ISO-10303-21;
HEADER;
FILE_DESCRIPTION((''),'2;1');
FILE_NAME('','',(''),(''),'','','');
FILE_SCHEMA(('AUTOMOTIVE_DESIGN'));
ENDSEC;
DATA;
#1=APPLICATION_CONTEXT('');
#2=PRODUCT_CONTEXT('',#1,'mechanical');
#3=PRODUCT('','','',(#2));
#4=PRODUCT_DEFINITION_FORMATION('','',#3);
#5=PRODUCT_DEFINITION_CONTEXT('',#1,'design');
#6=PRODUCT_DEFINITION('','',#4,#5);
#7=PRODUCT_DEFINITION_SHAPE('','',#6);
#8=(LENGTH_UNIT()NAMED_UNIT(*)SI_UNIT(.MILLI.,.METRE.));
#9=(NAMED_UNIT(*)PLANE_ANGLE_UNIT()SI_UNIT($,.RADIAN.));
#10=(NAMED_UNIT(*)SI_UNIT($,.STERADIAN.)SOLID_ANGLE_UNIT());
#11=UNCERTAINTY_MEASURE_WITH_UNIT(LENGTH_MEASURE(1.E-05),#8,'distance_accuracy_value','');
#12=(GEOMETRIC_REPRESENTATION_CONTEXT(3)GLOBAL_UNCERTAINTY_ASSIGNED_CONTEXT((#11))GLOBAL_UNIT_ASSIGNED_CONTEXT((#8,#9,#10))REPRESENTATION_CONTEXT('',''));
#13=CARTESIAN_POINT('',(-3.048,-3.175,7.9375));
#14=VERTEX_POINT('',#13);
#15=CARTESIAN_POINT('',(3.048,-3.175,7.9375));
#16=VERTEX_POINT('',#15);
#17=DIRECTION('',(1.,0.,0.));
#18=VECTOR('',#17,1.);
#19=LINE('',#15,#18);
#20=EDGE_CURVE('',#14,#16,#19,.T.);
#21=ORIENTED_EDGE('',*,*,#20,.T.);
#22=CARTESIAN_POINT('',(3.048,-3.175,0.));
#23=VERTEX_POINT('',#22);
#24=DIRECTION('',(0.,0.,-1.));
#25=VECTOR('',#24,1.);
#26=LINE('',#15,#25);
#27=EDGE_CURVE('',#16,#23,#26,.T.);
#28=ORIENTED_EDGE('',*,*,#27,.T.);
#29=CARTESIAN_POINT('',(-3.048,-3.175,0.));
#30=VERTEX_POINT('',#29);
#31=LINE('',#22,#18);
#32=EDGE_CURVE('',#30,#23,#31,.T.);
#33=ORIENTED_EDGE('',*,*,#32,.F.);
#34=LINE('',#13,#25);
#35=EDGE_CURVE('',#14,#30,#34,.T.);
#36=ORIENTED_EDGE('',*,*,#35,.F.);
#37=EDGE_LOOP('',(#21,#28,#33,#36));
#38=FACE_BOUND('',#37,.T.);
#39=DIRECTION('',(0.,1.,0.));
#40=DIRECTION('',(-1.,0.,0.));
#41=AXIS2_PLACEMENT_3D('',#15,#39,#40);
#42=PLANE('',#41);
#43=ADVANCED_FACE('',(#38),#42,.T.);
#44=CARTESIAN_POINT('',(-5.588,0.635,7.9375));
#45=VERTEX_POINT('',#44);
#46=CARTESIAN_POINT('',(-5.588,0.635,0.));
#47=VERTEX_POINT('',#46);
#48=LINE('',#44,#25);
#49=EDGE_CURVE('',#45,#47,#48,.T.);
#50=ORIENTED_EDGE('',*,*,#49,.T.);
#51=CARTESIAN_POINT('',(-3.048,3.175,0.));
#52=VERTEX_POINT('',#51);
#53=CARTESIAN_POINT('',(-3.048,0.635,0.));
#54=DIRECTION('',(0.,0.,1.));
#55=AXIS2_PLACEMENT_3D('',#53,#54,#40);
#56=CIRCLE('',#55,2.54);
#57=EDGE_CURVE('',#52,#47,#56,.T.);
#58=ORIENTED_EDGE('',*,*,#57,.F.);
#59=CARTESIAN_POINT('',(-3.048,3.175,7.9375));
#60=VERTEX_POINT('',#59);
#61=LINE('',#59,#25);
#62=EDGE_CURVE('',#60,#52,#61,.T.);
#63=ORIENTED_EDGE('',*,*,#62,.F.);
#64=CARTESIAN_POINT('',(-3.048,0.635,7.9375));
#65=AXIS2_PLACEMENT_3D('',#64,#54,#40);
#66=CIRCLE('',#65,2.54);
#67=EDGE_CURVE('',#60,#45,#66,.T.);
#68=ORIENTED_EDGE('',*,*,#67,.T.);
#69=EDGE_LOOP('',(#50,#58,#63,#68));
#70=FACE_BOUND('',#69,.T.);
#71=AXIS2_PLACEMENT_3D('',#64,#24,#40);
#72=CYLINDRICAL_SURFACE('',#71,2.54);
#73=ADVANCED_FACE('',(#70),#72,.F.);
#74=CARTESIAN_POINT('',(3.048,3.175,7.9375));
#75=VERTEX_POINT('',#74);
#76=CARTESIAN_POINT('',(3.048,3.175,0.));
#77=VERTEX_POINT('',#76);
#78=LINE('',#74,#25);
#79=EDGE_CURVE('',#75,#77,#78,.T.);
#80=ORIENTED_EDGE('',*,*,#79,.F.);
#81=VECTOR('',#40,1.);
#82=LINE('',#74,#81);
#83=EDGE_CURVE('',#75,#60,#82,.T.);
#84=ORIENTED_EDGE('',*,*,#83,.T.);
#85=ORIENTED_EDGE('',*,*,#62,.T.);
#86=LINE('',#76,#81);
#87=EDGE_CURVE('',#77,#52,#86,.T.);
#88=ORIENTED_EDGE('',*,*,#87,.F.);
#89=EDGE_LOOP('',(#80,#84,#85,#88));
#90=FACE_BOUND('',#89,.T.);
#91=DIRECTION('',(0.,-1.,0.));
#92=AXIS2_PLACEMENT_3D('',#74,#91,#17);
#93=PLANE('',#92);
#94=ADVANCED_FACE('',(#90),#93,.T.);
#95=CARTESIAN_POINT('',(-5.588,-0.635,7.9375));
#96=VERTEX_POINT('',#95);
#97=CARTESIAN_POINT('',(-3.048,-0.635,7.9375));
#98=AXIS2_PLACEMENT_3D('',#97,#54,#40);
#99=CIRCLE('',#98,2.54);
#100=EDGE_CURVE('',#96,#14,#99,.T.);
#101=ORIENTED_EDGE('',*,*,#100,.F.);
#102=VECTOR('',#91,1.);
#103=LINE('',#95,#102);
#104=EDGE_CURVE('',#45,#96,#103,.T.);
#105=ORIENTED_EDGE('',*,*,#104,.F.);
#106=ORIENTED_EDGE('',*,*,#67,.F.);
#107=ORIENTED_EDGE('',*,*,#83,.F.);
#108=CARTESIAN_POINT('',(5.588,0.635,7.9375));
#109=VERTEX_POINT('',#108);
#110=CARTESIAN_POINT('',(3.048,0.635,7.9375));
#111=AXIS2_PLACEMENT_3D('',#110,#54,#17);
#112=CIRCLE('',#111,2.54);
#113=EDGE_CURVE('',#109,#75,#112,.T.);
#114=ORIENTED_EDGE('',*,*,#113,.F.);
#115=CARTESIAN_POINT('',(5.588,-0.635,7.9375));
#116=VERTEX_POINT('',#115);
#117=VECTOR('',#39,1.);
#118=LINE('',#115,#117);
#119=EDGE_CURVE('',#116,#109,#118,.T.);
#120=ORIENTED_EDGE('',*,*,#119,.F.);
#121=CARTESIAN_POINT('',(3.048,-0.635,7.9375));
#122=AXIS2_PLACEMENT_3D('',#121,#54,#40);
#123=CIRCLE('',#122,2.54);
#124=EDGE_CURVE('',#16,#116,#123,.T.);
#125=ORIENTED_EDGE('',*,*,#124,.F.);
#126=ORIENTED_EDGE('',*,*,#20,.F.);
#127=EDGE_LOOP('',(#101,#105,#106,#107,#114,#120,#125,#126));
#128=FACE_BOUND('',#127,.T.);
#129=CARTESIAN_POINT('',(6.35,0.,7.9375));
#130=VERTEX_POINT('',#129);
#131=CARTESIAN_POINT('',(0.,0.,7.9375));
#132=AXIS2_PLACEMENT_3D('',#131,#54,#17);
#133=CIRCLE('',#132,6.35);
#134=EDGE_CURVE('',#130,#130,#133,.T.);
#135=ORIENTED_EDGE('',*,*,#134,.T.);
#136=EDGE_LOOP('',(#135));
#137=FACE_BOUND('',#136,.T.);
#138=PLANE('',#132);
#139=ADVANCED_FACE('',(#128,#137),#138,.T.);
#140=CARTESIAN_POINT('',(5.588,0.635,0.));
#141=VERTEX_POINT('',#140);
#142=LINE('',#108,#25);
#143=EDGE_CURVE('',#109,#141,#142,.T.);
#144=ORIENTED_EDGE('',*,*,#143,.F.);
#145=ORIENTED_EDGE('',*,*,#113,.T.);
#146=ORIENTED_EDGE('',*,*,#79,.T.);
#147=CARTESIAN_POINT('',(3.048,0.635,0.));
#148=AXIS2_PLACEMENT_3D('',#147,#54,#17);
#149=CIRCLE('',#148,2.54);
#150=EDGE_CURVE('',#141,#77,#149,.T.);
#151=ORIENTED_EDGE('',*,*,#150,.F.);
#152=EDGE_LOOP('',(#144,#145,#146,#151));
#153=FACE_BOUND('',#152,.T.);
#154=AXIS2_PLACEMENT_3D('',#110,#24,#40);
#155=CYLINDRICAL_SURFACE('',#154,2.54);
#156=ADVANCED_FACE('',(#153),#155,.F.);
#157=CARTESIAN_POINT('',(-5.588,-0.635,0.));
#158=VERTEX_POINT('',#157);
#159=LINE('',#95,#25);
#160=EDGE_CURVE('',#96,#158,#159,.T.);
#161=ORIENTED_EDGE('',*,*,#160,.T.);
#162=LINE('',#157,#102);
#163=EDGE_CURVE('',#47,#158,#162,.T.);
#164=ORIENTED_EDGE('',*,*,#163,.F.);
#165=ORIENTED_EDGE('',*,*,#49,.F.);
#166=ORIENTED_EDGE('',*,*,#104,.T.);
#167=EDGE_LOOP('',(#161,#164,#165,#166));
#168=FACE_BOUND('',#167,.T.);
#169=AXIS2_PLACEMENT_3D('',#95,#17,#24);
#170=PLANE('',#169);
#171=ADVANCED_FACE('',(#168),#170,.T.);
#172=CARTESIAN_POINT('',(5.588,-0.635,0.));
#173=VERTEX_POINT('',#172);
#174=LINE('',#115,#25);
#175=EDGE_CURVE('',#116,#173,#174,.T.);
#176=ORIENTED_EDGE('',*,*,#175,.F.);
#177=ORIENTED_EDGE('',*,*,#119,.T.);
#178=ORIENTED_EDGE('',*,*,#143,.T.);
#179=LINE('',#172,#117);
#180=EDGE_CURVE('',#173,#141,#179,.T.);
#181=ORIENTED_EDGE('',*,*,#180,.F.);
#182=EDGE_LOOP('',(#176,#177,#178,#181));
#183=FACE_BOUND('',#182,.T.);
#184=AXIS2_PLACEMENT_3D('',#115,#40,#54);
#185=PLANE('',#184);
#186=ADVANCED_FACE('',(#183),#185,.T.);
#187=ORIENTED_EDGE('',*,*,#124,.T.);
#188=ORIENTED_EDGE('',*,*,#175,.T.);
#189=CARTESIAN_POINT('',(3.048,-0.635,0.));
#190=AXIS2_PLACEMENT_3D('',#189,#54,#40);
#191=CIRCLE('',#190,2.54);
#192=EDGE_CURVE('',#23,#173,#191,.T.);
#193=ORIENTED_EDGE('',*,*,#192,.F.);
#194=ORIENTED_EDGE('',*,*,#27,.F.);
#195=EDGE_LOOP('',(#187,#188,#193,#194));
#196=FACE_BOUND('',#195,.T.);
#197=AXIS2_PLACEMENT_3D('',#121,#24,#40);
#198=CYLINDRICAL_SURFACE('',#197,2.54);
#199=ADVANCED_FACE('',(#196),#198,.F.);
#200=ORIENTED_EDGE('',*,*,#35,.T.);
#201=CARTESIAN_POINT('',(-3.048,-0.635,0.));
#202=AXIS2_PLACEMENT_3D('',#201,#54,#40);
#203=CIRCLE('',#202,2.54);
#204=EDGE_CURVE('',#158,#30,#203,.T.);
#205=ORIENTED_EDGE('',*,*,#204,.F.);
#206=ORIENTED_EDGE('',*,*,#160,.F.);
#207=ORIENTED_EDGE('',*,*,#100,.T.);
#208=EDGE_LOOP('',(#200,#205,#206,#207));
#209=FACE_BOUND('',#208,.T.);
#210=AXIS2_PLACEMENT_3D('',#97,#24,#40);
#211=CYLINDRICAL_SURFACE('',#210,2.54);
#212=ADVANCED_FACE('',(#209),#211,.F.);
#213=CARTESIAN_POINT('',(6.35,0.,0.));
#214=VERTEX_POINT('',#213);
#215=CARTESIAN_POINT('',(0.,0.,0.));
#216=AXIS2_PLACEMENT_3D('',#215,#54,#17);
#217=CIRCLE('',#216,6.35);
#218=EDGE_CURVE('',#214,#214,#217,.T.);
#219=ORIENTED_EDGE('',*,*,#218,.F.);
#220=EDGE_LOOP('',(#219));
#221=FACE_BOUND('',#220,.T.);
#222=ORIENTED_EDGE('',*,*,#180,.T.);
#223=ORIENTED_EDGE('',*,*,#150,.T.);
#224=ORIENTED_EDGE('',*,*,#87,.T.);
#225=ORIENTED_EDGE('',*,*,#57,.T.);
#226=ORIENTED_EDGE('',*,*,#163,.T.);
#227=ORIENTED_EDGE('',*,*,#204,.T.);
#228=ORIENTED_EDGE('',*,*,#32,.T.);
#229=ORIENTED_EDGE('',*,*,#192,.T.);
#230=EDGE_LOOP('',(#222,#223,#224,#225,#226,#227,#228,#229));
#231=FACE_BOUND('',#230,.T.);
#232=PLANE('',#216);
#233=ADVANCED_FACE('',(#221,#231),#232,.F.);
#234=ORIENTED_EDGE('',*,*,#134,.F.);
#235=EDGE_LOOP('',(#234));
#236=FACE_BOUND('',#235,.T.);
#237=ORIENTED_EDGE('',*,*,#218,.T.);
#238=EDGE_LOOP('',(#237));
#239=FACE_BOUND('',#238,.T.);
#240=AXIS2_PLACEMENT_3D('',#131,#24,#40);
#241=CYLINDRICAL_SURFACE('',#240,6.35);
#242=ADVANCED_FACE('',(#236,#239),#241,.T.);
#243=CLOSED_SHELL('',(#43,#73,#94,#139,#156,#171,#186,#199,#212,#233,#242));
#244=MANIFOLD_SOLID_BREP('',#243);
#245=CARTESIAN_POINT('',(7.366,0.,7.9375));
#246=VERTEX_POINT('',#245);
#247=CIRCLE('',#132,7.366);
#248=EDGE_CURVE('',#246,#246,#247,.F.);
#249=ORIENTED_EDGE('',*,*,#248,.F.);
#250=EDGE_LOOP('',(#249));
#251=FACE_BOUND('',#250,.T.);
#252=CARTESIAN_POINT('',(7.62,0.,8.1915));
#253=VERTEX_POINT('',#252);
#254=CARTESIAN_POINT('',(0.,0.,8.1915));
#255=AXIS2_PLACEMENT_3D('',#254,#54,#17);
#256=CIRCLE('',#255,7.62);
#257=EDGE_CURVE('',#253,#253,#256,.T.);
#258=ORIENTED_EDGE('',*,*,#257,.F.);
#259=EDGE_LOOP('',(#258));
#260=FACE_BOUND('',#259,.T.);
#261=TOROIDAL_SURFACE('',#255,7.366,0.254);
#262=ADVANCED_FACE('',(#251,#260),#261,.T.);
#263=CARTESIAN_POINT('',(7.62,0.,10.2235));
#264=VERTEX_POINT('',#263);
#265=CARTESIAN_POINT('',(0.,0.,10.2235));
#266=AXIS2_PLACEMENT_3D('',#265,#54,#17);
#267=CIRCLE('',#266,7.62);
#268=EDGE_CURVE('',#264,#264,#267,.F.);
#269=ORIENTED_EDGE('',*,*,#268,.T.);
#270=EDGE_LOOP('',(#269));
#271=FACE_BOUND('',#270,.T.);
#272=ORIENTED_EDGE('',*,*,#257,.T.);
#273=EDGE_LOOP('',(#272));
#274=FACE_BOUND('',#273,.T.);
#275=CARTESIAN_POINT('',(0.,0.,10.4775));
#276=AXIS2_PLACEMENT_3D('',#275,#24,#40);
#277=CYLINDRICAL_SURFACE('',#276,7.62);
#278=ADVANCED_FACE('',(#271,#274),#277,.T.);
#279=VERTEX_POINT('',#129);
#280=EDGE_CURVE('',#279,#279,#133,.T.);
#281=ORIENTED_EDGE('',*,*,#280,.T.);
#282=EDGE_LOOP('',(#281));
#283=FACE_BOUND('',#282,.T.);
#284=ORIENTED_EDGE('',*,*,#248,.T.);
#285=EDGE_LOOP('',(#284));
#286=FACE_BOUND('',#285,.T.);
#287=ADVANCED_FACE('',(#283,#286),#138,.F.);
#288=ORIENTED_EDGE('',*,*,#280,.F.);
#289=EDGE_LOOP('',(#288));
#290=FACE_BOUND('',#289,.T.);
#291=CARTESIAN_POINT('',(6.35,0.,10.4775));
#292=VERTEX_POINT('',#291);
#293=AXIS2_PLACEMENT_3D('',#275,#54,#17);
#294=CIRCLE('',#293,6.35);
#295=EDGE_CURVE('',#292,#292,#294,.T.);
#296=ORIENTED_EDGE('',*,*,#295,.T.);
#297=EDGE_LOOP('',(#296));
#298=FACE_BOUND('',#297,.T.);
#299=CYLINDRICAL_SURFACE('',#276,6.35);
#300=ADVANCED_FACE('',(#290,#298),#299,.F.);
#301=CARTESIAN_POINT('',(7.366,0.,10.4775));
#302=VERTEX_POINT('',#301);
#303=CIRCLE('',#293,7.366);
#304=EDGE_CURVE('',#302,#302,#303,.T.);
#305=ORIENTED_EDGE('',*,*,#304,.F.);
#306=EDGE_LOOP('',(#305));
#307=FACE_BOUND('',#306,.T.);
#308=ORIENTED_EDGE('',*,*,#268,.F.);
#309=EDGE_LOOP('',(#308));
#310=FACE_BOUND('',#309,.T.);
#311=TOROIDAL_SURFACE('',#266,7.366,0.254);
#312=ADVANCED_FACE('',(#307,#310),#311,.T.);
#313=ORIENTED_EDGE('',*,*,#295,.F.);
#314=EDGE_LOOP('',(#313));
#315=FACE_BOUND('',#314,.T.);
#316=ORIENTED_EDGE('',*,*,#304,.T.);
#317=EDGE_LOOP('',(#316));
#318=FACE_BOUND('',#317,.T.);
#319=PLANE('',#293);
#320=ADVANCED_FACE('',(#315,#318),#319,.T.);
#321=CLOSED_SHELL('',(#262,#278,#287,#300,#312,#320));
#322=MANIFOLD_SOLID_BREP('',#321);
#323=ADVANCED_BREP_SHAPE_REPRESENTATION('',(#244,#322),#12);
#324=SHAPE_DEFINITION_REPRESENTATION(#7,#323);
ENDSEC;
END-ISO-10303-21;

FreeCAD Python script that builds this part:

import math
import FreeCAD as App
import Part
import Sketcher
from FreeCAD import Vector
Q = App.Units.Quantity


def edges_at(feature, points):
    """Names of the edges that pass closest to the given points."""
    edges = feature.Shape.Edges
    near = lambda p: min(range(len(edges)), key=lambda i: edges[i].distToShape(Part.Vertex(*p))[0])
    return sorted({f"Edge{near(p) + 1}" for p in points})

doc = App.newDocument("Part")
params = doc.addObject("Spreadsheet::Sheet", "Params")
for row, (alias, value) in enumerate([
    ("sketch1_diameter", "0.5 in"),
    ("sketch1_radius", "0.1 in"),
    ("sketch1_width", "0.24 in"),
    ("sketch1_height", "0.05 in"),
    ("pad1_length", "0.3125 in"),
    ("sketch2_diameter", "0.6 in"),
    ("sketch2_diameter2", "0.5 in"),
    ("pad2_length", "0.1 in"),
    ("fillet_radius", "0.01 in"),
], start=1):
    params.set(f"A{row}", alias)
    params.set(f"B{row}", "=" + value)
    params.setAlias(f"B{row}", alias)

body = doc.addObject("PartDesign::Body", "Body")

# Sketch on XY plane
sketch1 = body.newObject("Sketcher::SketchObject", "Sketch")
sketch1.AttachmentSupport = (doc.getObject("XY_Plane"), [""])
sketch1.MapMode = "FlatFace"
sketch1.addGeometry([
    Part.Circle(Vector(0, 0, 0), Vector(0, 0, 1), 6.3),  # 0
    Part.ArcOfCircle(Part.Circle(Vector(3, -0.6, 0), Vector(0, 0, 1), 2.5), math.radians(-90), math.radians(0)),  # 1
    Part.LineSegment(Vector(3, -3.2, 0), Vector(-3, -3.2, 0)),  # 2
    Part.ArcOfCircle(Part.Circle(Vector(-3, -0.6, 0), Vector(0, 0, 1), 2.5), math.radians(-180), math.radians(-90)),  # 3
    Part.LineSegment(Vector(-5.6, -0.6, 0), Vector(-5.6, 0.6, 0)),  # 4
    Part.ArcOfCircle(Part.Circle(Vector(-3, 0.6, 0), Vector(0, 0, 1), 2.5), math.radians(90), math.radians(180)),  # 5
    Part.LineSegment(Vector(-3, 3.2, 0), Vector(3, 3.2, 0)),  # 6
    Part.ArcOfCircle(Part.Circle(Vector(3, 0.6, 0), Vector(0, 0, 1), 2.5), math.radians(0), math.radians(90)),  # 7
    Part.LineSegment(Vector(5.6, 0.6, 0), Vector(5.6, -0.6, 0)),  # 8
], False)
sketch1.addConstraint([
    Sketcher.Constraint("Tangent", 1, 1, 2, 1),
    Sketcher.Constraint("Tangent", 2, 2, 3, 2),
    Sketcher.Constraint("Tangent", 3, 1, 4, 1),
    Sketcher.Constraint("Tangent", 4, 2, 5, 2),
    Sketcher.Constraint("Tangent", 5, 1, 6, 1),
    Sketcher.Constraint("Tangent", 6, 2, 7, 2),
    Sketcher.Constraint("Tangent", 7, 1, 8, 1),
    Sketcher.Constraint("Tangent", 8, 2, 1, 2),
    Sketcher.Constraint("Horizontal", 2),
    Sketcher.Constraint("Vertical", 4),
    Sketcher.Constraint("Horizontal", 6),
    Sketcher.Constraint("Vertical", 8),
    Sketcher.Constraint("Coincident", 0, 3, -1, 1),
    Sketcher.Constraint("Equal", 1, 3),
    Sketcher.Constraint("Equal", 3, 5),
    Sketcher.Constraint("Equal", 5, 7),
    Sketcher.Constraint("Symmetric", 1, 3, 5, 3, -1, 1),
    Sketcher.Constraint("Diameter", 0, Q("0.5 in")),
    Sketcher.Constraint("Radius", 1, Q("0.1 in")),
    Sketcher.Constraint("DistanceX", 2, 2, 2, 1, Q("0.24 in")),
    Sketcher.Constraint("DistanceY", 4, 1, 4, 2, Q("0.05 in")),
])
sketch1.setExpression("Constraints[17]", "Params.sketch1_diameter")
sketch1.setExpression("Constraints[18]", "Params.sketch1_radius")
sketch1.setExpression("Constraints[19]", "Params.sketch1_width")
sketch1.setExpression("Constraints[20]", "Params.sketch1_height")
pad1 = body.newObject("PartDesign::Pad", "Pad")
pad1.Profile = sketch1
pad1.setExpression("Length", "Params.pad1_length")
body2 = doc.addObject("PartDesign::Body", "Body001")

# Sketch on XY plane
sketch2 = body2.newObject("Sketcher::SketchObject", "Sketch001")
sketch2.AttachmentSupport = (doc.getObject("XY_Plane001"), [""])
sketch2.MapMode = "FlatFace"
sketch2.AttachmentOffset = App.Placement(Vector(0, 0, 0.3125 * 25.4), App.Rotation())
sketch2.addGeometry([
    Part.Circle(Vector(0, 0, 0), Vector(0, 0, 1), 8),
    Part.Circle(Vector(0, 0, 0), Vector(0, 0, 1), 6),
], False)
sketch2.addConstraint([
    Sketcher.Constraint("Coincident", 0, 3, -1, 1),
    Sketcher.Constraint("Coincident", 1, 3, -1, 1),
    Sketcher.Constraint("Diameter", 0, Q("0.6 in")),
    Sketcher.Constraint("Diameter", 1, Q("0.5 in")),
])
sketch2.setExpression("Constraints[2]", "Params.sketch2_diameter")
sketch2.setExpression("Constraints[3]", "Params.sketch2_diameter2")
pad2 = body2.newObject("PartDesign::Pad", "Pad001")
pad2.Profile = sketch2
pad2.setExpression("Length", "Params.pad2_length")
doc.recompute()

fillet = body2.newObject("PartDesign::Fillet", "Fillet")
fillet.Base = (pad2, edges_at(pad2, [(-7.62, 0, 7.938), (-7.62, 0, 10.477)]))
fillet.setExpression("Radius", "Params.fillet_radius")

doc.recompute()
